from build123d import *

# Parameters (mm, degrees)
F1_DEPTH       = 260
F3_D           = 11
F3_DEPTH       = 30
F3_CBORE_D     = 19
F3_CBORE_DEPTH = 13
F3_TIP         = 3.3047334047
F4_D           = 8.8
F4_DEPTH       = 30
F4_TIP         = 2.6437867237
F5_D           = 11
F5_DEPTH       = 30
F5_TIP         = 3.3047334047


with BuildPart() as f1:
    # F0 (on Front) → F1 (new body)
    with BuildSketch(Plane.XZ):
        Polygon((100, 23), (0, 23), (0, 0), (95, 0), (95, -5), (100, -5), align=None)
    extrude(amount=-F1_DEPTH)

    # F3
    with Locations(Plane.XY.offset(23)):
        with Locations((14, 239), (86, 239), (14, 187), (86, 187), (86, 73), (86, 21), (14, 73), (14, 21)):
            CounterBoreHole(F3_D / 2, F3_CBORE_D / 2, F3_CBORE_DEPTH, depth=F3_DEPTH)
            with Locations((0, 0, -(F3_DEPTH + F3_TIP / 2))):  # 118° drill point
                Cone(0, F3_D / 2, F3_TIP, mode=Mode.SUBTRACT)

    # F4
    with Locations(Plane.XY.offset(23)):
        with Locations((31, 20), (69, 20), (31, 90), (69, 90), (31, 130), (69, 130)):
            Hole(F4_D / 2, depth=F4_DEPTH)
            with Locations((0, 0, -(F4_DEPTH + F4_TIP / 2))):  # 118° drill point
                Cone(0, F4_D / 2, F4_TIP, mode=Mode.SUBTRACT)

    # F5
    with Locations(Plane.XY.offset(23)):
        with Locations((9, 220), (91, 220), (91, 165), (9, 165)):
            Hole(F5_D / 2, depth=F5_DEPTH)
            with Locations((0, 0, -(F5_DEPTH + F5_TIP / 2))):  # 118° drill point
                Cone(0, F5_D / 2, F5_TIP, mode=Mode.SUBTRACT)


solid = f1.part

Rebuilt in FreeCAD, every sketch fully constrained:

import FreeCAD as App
import Part
import Sketcher

V = App.Vector


def add_polygon(sketch, points):
    """Adds a closed chain of lines whose ends are joined by coincident constraints."""
    first, n = sketch.GeometryCount, len(points)
    for a, b in zip(points, points[1:] + points[:1]):
        sketch.addGeometry(Part.LineSegment(App.Vector(*a, 0), App.Vector(*b, 0)), False)
    for i in range(n):
        sketch.addConstraint(Sketcher.Constraint("Coincident", first + i, 2, first + (i + 1) % n, 1))

doc = App.newDocument("Part")
params = doc.addObject("Spreadsheet::Sheet", "Params")
for row, (alias, value) in enumerate([
    ("sketch1_width", "100 mm"),
    ("sketch1_width2", "95 mm"),
    ("sketch1_height", "23 mm"),
    ("pad1_length", "260 mm"),
    ("sketch2_diameter", "11 mm"),
    ("hole_diameter", "11 mm"),
    ("hole_depth", "30 mm"),
    ("hole_cbore_diameter", "19 mm"),
    ("hole_cbore_depth", "13 mm"),
    ("sketch3_diameter", "8.8 mm"),
    ("hole2_diameter", "8.8 mm"),
    ("hole2_depth", "30 mm"),
    ("sketch4_diameter", "11 mm"),
    ("hole3_diameter", "11 mm"),
    ("hole3_depth", "30 mm"),
], start=1):
    params.set(f"A{row}", alias)
    params.set(f"B{row}", "=" + value)
    params.setAlias(f"B{row}", alias)

body = doc.addObject("PartDesign::Body", "Body")

# Sketch on XZ plane
sketch1 = doc.addObject("Sketcher::SketchObject", "Sketch")
body.addObject(sketch1)
sketch1.AttachmentSupport = (doc.XZ_Plane, [""])
sketch1.MapMode = "FlatFace"
add_polygon(sketch1, [(100, 23), (0, 23), (0, 0), (95, 0), (95, -5), (100, -5)])  # lines 0-5
sketch1.addConstraint([
    Sketcher.Constraint("Horizontal", 0),
    Sketcher.Constraint("Vertical", 1),
    Sketcher.Constraint("Horizontal", 2),
    Sketcher.Constraint("Vertical", 3),
    Sketcher.Constraint("Horizontal", 4),
    Sketcher.Constraint("Vertical", 5),
    Sketcher.Constraint("Coincident", 1, 2, -1, 1),
    Sketcher.Constraint("Equal", 4, 3),
    Sketcher.Constraint("DistanceX", 0, 2, 0, 1, 100.0),
    Sketcher.Constraint("DistanceX", 2, 1, 2, 2, 95.0),
    Sketcher.Constraint("DistanceY", 1, 2, 1, 1, 23.0),
])
sketch1.setExpression("Constraints[14]", "Params.sketch1_width")
sketch1.setExpression("Constraints[15]", "Params.sketch1_width2")
sketch1.setExpression("Constraints[16]", "Params.sketch1_height")
pad1 = doc.addObject("PartDesign::Pad", "Pad")
body.addObject(pad1)
pad1.Profile = sketch1
pad1.setExpression("Length", "Params.pad1_length")
pad1.Reversed = True

# Sketch on XY plane
sketch2 = doc.addObject("Sketcher::SketchObject", "Sketch001")
body.addObject(sketch2)
sketch2.AttachmentSupport = (doc.XY_Plane, [""])
sketch2.MapMode = "FlatFace"
sketch2.AttachmentOffset = App.Placement(V(0, 0, 23), App.Rotation())
sketch2.addGeometry([
    Part.Circle(V(14, 239, 0), V(0, 0, 1), 6),  # 0
    Part.Circle(V(86, 239, 0), V(0, 0, 1), 6),  # 1
    Part.Circle(V(14, 187, 0), V(0, 0, 1), 6),  # 2
    Part.Circle(V(86, 187, 0), V(0, 0, 1), 6),  # 3
    Part.Circle(V(86, 73, 0), V(0, 0, 1), 6),  # 4
    Part.Circle(V(86, 21, 0), V(0, 0, 1), 6),  # 5
    Part.Circle(V(14, 73, 0), V(0, 0, 1), 6),  # 6
    Part.Circle(V(14, 21, 0), V(0, 0, 1), 6),  # 7
], False)
sketch2.addConstraint([
    Sketcher.Constraint("Equal", 0, 1),
    Sketcher.Constraint("Equal", 1, 2),
    Sketcher.Constraint("Equal", 2, 3),
    Sketcher.Constraint("Equal", 3, 4),
    Sketcher.Constraint("Equal", 4, 5),
    Sketcher.Constraint("Equal", 5, 6),
    Sketcher.Constraint("Equal", 6, 7),
    Sketcher.Constraint("Horizontal", 0, 3, 1, 3),
    Sketcher.Constraint("Horizontal", 2, 3, 3, 3),
    Sketcher.Constraint("Horizontal", 4, 3, 6, 3),
    Sketcher.Constraint("Horizontal", 5, 3, 7, 3),
    Sketcher.Constraint("Vertical", 0, 3, 2, 3),
    Sketcher.Constraint("Vertical", 1, 3, 3, 3),
    Sketcher.Constraint("Vertical", 3, 3, 4, 3),
    Sketcher.Constraint("Vertical", 4, 3, 5, 3),
    Sketcher.Constraint("Vertical", 2, 3, 6, 3),
    Sketcher.Constraint("Vertical", 6, 3, 7, 3),
    Sketcher.Constraint("Diameter", 0, 11.0),
    Sketcher.Constraint("DistanceX", -1, 1, 0, 3, 14.0),
    Sketcher.Constraint("DistanceY", -1, 1, 0, 3, 239.0),
    Sketcher.Constraint("DistanceX", -1, 1, 1, 3, 86.0),
    Sketcher.Constraint("DistanceY", -1, 1, 2, 3, 187.0),
    Sketcher.Constraint("DistanceY", -1, 1, 4, 3, 73.0),
    Sketcher.Constraint("DistanceY", -1, 1, 5, 3, 21.0),
])
sketch2.setExpression("Constraints[17]", "Params.sketch2_diameter")
doc.recompute()
hole = doc.addObject("PartDesign::Hole", "Hole")
body.addObject(hole)
hole.Profile = sketch2
hole.ThreadType = "None"
hole.setExpression("Diameter", "Params.hole_diameter")
hole.DepthType = "Dimension"
hole.setExpression("Depth", "Params.hole_depth")
hole.DrillPoint = "Angled"
hole.DrillPointAngle = 118
hole.HoleCutType = "Counterbore"
hole.setExpression("HoleCutDiameter", "Params.hole_cbore_diameter")
hole.setExpression("HoleCutDepth", "Params.hole_cbore_depth")

# Sketch on XY plane
sketch3 = doc.addObject("Sketcher::SketchObject", "Sketch002")
body.addObject(sketch3)
sketch3.AttachmentSupport = (doc.XY_Plane, [""])
sketch3.MapMode = "FlatFace"
sketch3.AttachmentOffset = App.Placement(V(0, 0, 23), App.Rotation())
sketch3.addGeometry([
    Part.Circle(V(31, 20, 0), V(0, 0, 1), 4.4),  # 0
    Part.Circle(V(69, 20, 0), V(0, 0, 1), 4.4),  # 1
    Part.Circle(V(31, 90, 0), V(0, 0, 1), 4.4),  # 2
    Part.Circle(V(69, 90, 0), V(0, 0, 1), 4.4),  # 3
    Part.Circle(V(31, 130, 0), V(0, 0, 1), 4.4),  # 4
    Part.Circle(V(69, 130, 0), V(0, 0, 1), 4.4),  # 5
], False)
sketch3.addConstraint([
    Sketcher.Constraint("Equal", 0, 1),
    Sketcher.Constraint("Equal", 1, 2),
    Sketcher.Constraint("Equal", 2, 3),
    Sketcher.Constraint("Equal", 3, 4),
    Sketcher.Constraint("Equal", 4, 5),
    Sketcher.Constraint("Horizontal", 0, 3, 1, 3),
    Sketcher.Constraint("Horizontal", 2, 3, 3, 3),
    Sketcher.Constraint("Horizontal", 4, 3, 5, 3),
    Sketcher.Constraint("Vertical", 0, 3, 2, 3),
    Sketcher.Constraint("Vertical", 1, 3, 3, 3),
    Sketcher.Constraint("Vertical", 2, 3, 4, 3),
    Sketcher.Constraint("Vertical", 3, 3, 5, 3),
    Sketcher.Constraint("Diameter", 0, 8.8),
    Sketcher.Constraint("DistanceX", -1, 1, 0, 3, 31.0),
    Sketcher.Constraint("DistanceY", -1, 1, 0, 3, 20.0),
    Sketcher.Constraint("DistanceX", -1, 1, 1, 3, 69.0),
    Sketcher.Constraint("DistanceY", -1, 1, 2, 3, 90.0),
    Sketcher.Constraint("DistanceY", -1, 1, 4, 3, 130.0),
])
sketch3.setExpression("Constraints[12]", "Params.sketch3_diameter")
doc.recompute()
hole2 = doc.addObject("PartDesign::Hole", "Hole001")
body.addObject(hole2)
hole2.Profile = sketch3
hole2.ThreadType = "None"
hole2.setExpression("Diameter", "Params.hole2_diameter")
hole2.DepthType = "Dimension"
hole2.setExpression("Depth", "Params.hole2_depth")
hole2.DrillPoint = "Angled"
hole2.DrillPointAngle = 118

# Sketch on XY plane
sketch4 = doc.addObject("Sketcher::SketchObject", "Sketch003")
body.addObject(sketch4)
sketch4.AttachmentSupport = (doc.XY_Plane, [""])
sketch4.MapMode = "FlatFace"
sketch4.AttachmentOffset = App.Placement(V(0, 0, 23), App.Rotation())
sketch4.addGeometry([
    Part.Circle(V(9, 220, 0), V(0, 0, 1), 6),
    Part.Circle(V(91, 220, 0), V(0, 0, 1), 6),
    Part.Circle(V(91, 165, 0), V(0, 0, 1), 6),
    Part.Circle(V(9, 165, 0), V(0, 0, 1), 6),
], False)
sketch4.addConstraint([
    Sketcher.Constraint("Equal", 0, 1),
    Sketcher.Constraint("Equal", 1, 2),
    Sketcher.Constraint("Equal", 2, 3),
    Sketcher.Constraint("Horizontal", 0, 3, 1, 3),
    Sketcher.Constraint("Horizontal", 2, 3, 3, 3),
    Sketcher.Constraint("Vertical", 1, 3, 2, 3),
    Sketcher.Constraint("Vertical", 0, 3, 3, 3),
    Sketcher.Constraint("Diameter", 0, 11.0),
    Sketcher.Constraint("DistanceX", -1, 1, 0, 3, 9.0),
    Sketcher.Constraint("DistanceY", -1, 1, 0, 3, 220.0),
    Sketcher.Constraint("DistanceX", -1, 1, 1, 3, 91.0),
    Sketcher.Constraint("DistanceY", -1, 1, 2, 3, 165.0),
])
sketch4.setExpression("Constraints[7]", "Params.sketch4_diameter")
doc.recompute()
hole3 = doc.addObject("PartDesign::Hole", "Hole002")
body.addObject(hole3)
hole3.Profile = sketch4
hole3.ThreadType = "None"
hole3.setExpression("Diameter", "Params.hole3_diameter")
hole3.DepthType = "Dimension"
hole3.setExpression("Depth", "Params.hole3_depth")
hole3.DrillPoint = "Angled"
hole3.DrillPointAngle = 118

doc.recompute()
